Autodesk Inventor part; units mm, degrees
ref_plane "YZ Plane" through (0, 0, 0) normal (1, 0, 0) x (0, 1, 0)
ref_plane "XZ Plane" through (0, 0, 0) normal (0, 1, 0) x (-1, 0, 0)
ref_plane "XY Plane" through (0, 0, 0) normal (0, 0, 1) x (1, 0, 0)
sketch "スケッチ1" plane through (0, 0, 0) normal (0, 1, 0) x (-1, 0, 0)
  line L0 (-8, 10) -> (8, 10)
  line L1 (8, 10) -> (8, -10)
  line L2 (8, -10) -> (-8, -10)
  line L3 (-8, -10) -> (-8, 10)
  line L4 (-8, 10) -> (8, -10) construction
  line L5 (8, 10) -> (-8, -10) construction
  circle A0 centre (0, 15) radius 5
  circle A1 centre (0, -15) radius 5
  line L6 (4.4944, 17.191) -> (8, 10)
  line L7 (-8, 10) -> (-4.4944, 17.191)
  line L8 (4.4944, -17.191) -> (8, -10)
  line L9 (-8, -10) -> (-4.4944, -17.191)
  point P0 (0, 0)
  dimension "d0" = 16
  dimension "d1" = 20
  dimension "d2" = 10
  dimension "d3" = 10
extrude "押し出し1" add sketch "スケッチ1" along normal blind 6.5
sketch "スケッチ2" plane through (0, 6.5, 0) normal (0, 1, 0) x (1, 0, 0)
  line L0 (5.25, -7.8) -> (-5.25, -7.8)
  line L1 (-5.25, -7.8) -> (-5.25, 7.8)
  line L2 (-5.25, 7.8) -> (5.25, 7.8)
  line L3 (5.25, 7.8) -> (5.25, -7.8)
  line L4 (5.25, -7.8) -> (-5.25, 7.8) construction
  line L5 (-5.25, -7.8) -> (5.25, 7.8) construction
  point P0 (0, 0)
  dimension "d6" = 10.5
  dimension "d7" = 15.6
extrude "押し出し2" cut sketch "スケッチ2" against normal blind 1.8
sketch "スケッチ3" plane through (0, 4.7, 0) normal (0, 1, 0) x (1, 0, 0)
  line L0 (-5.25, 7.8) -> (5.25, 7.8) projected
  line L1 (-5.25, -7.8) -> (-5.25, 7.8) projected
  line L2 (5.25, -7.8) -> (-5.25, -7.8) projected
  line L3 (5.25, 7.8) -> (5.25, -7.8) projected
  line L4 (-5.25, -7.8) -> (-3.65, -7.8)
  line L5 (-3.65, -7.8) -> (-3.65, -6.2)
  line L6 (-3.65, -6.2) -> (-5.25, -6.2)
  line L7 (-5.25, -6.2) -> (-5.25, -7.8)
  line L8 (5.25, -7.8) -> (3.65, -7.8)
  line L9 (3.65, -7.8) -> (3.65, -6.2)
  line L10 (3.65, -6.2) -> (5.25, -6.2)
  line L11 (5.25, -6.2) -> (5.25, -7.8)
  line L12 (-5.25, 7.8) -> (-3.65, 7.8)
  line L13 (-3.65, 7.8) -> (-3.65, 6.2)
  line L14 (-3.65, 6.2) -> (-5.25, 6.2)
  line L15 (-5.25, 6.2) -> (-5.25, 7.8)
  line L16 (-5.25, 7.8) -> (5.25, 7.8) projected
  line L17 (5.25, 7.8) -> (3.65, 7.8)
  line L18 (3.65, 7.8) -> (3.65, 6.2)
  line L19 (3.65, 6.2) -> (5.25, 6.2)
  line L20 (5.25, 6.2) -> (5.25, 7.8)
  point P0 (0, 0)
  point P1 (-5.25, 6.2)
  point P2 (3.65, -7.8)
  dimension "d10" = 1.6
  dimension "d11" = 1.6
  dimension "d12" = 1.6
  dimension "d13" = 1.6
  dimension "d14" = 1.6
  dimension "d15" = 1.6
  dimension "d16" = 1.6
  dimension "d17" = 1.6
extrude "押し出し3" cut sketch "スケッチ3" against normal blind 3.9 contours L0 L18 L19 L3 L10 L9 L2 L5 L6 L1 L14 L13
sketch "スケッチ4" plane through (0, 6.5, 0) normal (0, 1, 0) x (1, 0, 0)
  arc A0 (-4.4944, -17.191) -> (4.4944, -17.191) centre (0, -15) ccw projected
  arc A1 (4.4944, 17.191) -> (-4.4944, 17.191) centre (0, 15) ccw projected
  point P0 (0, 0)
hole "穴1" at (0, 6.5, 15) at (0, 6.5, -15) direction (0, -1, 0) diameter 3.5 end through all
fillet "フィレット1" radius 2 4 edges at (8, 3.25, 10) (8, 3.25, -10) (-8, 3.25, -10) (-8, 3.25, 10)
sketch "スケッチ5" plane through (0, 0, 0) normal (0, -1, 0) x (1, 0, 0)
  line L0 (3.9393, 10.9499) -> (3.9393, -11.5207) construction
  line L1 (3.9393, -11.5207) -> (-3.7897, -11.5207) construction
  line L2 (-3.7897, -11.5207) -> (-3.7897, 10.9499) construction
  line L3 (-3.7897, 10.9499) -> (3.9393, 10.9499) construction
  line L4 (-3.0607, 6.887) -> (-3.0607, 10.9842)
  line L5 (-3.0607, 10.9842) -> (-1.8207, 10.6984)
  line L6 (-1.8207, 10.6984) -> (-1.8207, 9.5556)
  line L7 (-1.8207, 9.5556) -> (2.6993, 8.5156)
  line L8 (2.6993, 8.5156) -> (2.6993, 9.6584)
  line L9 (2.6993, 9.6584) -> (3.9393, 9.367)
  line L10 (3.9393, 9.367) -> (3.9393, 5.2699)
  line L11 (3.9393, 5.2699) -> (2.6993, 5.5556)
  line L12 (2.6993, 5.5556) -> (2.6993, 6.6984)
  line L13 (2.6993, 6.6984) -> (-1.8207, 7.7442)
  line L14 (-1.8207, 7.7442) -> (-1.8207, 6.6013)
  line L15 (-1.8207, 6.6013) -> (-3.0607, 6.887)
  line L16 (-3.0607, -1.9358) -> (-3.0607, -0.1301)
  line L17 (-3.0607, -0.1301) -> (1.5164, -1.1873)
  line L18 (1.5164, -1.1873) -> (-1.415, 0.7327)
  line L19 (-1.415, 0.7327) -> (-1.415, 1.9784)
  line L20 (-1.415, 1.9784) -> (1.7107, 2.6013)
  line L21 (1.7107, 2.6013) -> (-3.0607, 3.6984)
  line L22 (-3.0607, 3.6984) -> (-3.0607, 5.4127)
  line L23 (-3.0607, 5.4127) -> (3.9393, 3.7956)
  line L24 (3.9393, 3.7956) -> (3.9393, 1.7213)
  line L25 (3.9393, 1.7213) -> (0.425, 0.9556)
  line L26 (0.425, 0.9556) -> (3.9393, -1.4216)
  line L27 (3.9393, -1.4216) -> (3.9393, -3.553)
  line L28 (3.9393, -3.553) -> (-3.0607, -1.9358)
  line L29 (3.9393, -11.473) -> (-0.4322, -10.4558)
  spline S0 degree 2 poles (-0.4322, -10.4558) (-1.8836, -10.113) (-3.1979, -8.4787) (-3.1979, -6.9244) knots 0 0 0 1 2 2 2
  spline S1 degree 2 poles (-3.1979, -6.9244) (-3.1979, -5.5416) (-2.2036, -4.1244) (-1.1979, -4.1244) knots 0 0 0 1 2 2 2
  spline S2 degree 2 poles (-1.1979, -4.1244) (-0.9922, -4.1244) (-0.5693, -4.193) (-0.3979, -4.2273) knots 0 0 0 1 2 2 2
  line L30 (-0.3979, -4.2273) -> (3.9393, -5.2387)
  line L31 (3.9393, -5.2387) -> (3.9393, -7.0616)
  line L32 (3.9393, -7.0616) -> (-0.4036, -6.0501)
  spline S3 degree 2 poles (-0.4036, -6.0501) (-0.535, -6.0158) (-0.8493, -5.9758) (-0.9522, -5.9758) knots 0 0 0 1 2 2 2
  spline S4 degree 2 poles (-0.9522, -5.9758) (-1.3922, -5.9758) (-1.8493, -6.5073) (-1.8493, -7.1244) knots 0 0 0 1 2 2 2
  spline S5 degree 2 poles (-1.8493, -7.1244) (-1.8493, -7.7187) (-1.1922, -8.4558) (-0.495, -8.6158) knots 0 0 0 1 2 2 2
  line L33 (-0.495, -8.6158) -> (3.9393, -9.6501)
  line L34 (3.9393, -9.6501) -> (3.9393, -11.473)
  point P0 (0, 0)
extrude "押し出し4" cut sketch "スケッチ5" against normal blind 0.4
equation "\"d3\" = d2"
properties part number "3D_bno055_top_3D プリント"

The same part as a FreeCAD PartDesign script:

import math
import FreeCAD as App
import Part
import Sketcher

V = App.Vector


def edges_at(feature, points):
    """Names of the edges that pass closest to the given points."""
    edges = feature.Shape.Edges
    near = lambda p: min(range(len(edges)), key=lambda i: edges[i].distToShape(Part.Vertex(*p))[0])
    return sorted({f"Edge{near(p) + 1}" for p in points})


def add_polygon(sketch, points):
    """Adds a closed chain of lines whose ends are joined by coincident constraints."""
    first, n = sketch.GeometryCount, len(points)
    for a, b in zip(points, points[1:] + points[:1]):
        sketch.addGeometry(Part.LineSegment(App.Vector(*a, 0), App.Vector(*b, 0)), False)
    for i in range(n):
        sketch.addConstraint(Sketcher.Constraint("Coincident", first + i, 2, first + (i + 1) % n, 1))

doc = App.newDocument("Part")
body = doc.addObject("PartDesign::Body", "Body")

sketch1 = body.newObject("Sketcher::SketchObject", "Sketch")
sketch1.AttachmentSupport = (doc.getObject("XZ_Plane"), [""])
sketch1.MapMode = "FlatFace"
sketch1.addGeometry(Part.LineSegment(V(4, 17, 0), V(8, 10, 0)), False)
sketch1.addGeometry(Part.LineSegment(V(8, 10, 0), V(8, -10, 0)), False)
sketch1.addGeometry(Part.LineSegment(V(8, -10, 0), V(4, -17, 0)), False)
sketch1.addGeometry(Part.ArcOfCircle(Part.Circle(V(0, -15, 0), V(0, 0, 1), 5), math.radians(-154), math.radians(-26)), False)
sketch1.addGeometry(Part.LineSegment(V(-4, -17, 0), V(-8, -10, 0)), False)
sketch1.addGeometry(Part.LineSegment(V(-8, -10, 0), V(-8, 10, 0)), False)
sketch1.addGeometry(Part.LineSegment(V(-8, 10, 0), V(-4, 17, 0)), False)
sketch1.addGeometry(Part.ArcOfCircle(Part.Circle(V(0, 15, 0), V(0, 0, 1), 5), math.radians(26), math.radians(154)), False)
sketch1.addConstraint(Sketcher.Constraint("Coincident", 0, 2, 1, 1))
sketch1.addConstraint(Sketcher.Constraint("Coincident", 1, 2, 2, 1))
sketch1.addConstraint(Sketcher.Constraint("Tangent", 2, 2, 3, 2))
sketch1.addConstraint(Sketcher.Constraint("Tangent", 3, 1, 4, 1))
sketch1.addConstraint(Sketcher.Constraint("Coincident", 4, 2, 5, 1))
sketch1.addConstraint(Sketcher.Constraint("Coincident", 5, 2, 6, 1))
sketch1.addConstraint(Sketcher.Constraint("Tangent", 6, 2, 7, 2))
sketch1.addConstraint(Sketcher.Constraint("Tangent", 7, 1, 0, 1))
sketch1.addConstraint(Sketcher.Constraint("Vertical", 1))
sketch1.addConstraint(Sketcher.Constraint("Vertical", 5))
sketch1.addConstraint(Sketcher.Constraint("Equal", 3, 7))
sketch1.addConstraint(Sketcher.Constraint("Symmetric", 3, 3, 7, 3, -1, 1))
sketch1.addConstraint(Sketcher.Constraint("Symmetric", 0, 2, 4, 2, -1, 1))
sketch1.addConstraint(Sketcher.Constraint("Symmetric", 2, 2, 3, 1, -2))
sketch1.addConstraint(Sketcher.Constraint("Parallel", 2, 6))
sketch1.addConstraint(Sketcher.Constraint("Radius", 3, 5.0))
sketch1.addConstraint(Sketcher.Constraint("DistanceY", 1, 2, 1, 1, 20.0))
sketch1.addConstraint(Sketcher.Constraint("DistanceX", 4, 2, 1, 2, 16.0))
sketch1.addConstraint(Sketcher.Constraint("Distance", 0, 8.0))
pad1 = body.newObject("PartDesign::Pad", "Pad")
pad1.Profile = sketch1
pad1.Length = 6.5
pad1.Reversed = True

sketch2 = body.newObject("Sketcher::SketchObject", "Sketch001")
sketch2.AttachmentSupport = (doc.getObject("XZ_Plane"), [""])
sketch2.MapMode = "FlatFace"
sketch2.AttachmentOffset = App.Placement(V(0, 0, -6.5), App.Rotation())
add_polygon(sketch2, [(-5, 8), (5, 8), (5, -8), (-5, -8)])
sketch2.addConstraint(Sketcher.Constraint("Horizontal", 0))
sketch2.addConstraint(Sketcher.Constraint("Vertical", 1))
sketch2.addConstraint(Sketcher.Constraint("Horizontal", 2))
sketch2.addConstraint(Sketcher.Constraint("Vertical", 3))
sketch2.addConstraint(Sketcher.Constraint("Symmetric", 0, 2, 2, 2, -1, 1))
sketch2.addConstraint(Sketcher.Constraint("DistanceX", 0, 1, 0, 2, 10.5))
sketch2.addConstraint(Sketcher.Constraint("DistanceY", 1, 2, 1, 1, 15.6))
pocket1 = body.newObject("PartDesign::Pocket", "Pocket")
pocket1.Profile = sketch2
pocket1.Length = 1.8
pocket1.Reversed = True

sketch3 = body.newObject("Sketcher::SketchObject", "Sketch002")
sketch3.AttachmentSupport = (doc.getObject("XZ_Plane"), [""])
sketch3.MapMode = "FlatFace"
sketch3.AttachmentOffset = App.Placement(V(0, 0, -4.7), App.Rotation())
add_polygon(sketch3, [(3.6, -7.8), (-3.6, -7.8), (-3.6, -6.2), (-5.2, -6.2), (-5.2, 6.2), (-3.6, 6.2), (-3.6, 7.8), (3.6, 7.8), (3.6, 6.2), (5.2, 6.2), (5.2, -6.2), (3.6, -6.2)])
sketch3.addConstraint(Sketcher.Constraint("Horizontal", 0))
sketch3.addConstraint(Sketcher.Constraint("Vertical", 1))
sketch3.addConstraint(Sketcher.Constraint("Horizontal", 2))
sketch3.addConstraint(Sketcher.Constraint("Vertical", 3))
sketch3.addConstraint(Sketcher.Constraint("Horizontal", 4))
sketch3.addConstraint(Sketcher.Constraint("Vertical", 5))
sketch3.addConstraint(Sketcher.Constraint("Horizontal", 6))
sketch3.addConstraint(Sketcher.Constraint("Vertical", 7))
sketch3.addConstraint(Sketcher.Constraint("Horizontal", 8))
sketch3.addConstraint(Sketcher.Constraint("Vertical", 9))
sketch3.addConstraint(Sketcher.Constraint("Horizontal", 10))
sketch3.addConstraint(Sketcher.Constraint("Vertical", 11))
sketch3.addConstraint(Sketcher.Constraint("Symmetric", 0, 2, 6, 2, -1, 1))
sketch3.addConstraint(Sketcher.Constraint("Symmetric", 2, 2, 8, 2, -1, 1))
sketch3.addConstraint(Sketcher.Constraint("Symmetric", 4, 2, 10, 2, -1, 1))
sketch3.addConstraint(Sketcher.Constraint("Symmetric", 4, 2, 7, 2, -2))
sketch3.addConstraint(Sketcher.Constraint("Equal", 10, 1))
sketch3.addConstraint(Sketcher.Constraint("DistanceX", 2, 2, 2, 1, 1.6))
sketch3.addConstraint(Sketcher.Constraint("DistanceX", 0, 2, 0, 1, 7.3))
sketch3.addConstraint(Sketcher.Constraint("DistanceY", 3, 1, 3, 2, 12.4))
pocket2 = body.newObject("PartDesign::Pocket", "Pocket001")
pocket2.Profile = sketch3
pocket2.Length = 3.9
pocket2.Reversed = True

sketch4 = body.newObject("Sketcher::SketchObject", "Sketch003")
sketch4.AttachmentSupport = (doc.getObject("XZ_Plane"), [""])
sketch4.MapMode = "FlatFace"
sketch4.AttachmentOffset = App.Placement(V(0, 0, -6.5), App.Rotation())
sketch4.addGeometry(Part.Circle(V(0, 15, 0), V(0, 0, 1), 1.8), False)
sketch4.addGeometry(Part.Circle(V(0, -15, 0), V(0, 0, 1), 1.8), False)
sketch4.addConstraint(Sketcher.Constraint("Equal", 0, 1))
sketch4.addConstraint(Sketcher.Constraint("Symmetric", 0, 3, 1, 3, -1, 1))
sketch4.addConstraint(Sketcher.Constraint("PointOnObject", 0, 3, -2))
sketch4.addConstraint(Sketcher.Constraint("Diameter", 0, 3.5))
sketch4.addConstraint(Sketcher.Constraint("DistanceY", -1, 1, 0, 3, 15.0))
doc.recompute()
hole = body.newObject("PartDesign::Hole", "Hole")
hole.Profile = sketch4
hole.ThreadType = "None"
hole.Diameter = 3.5
hole.DepthType = "ThroughAll"
hole.Reversed = True
doc.recompute()

fillet = body.newObject("PartDesign::Fillet", "Fillet")
fillet.Base = (hole, edges_at(hole, [
    (8, 3.25, 10),
    (8, 3.25, -10),
    (-8, 3.25, -10),
    (-8, 3.25, 10),
]))
fillet.Radius = 2

sketch5 = body.newObject("Sketcher::SketchObject", "Sketch004")
sketch5.AttachmentSupport = (doc.getObject("XZ_Plane"), [""])
sketch5.MapMode = "FlatFace"
add_polygon(sketch5, [(-3.0607, 10.9842), (-3.0607, 6.887), (-1.8207, 6.6013), (-1.8207, 7.7442), (2.6993, 6.6984), (2.6993, 5.5556), (3.9393, 5.2699), (3.9393, 9.367), (2.6993, 9.6584), (2.6993, 8.5156), (-1.8207, 9.5556), (-1.8207, 10.6984)])
add_polygon(sketch5, [(-3.0607, -0.1301), (-3.0607, -1.9358), (3.9393, -3.553), (3.9393, -1.4216), (0.425, 0.9556), (3.9393, 1.7213), (3.9393, 3.7956), (-3.0607, 5.4127), (-3.0607, 3.6984), (1.7107, 2.6013), (-1.415, 1.9784), (-1.415, 0.7327), (1.5164, -1.1873)])
sketch5.addGeometry(Part.LineSegment(V(-0.4322, -10.4558, 0), V(3.9393, -11.473, 0)), False)
sketch5.addGeometry(Part.LineSegment(V(3.9393, -11.473, 0), V(3.9393, -9.6501, 0)), False)
sketch5.addGeometry(Part.LineSegment(V(3.9393, -9.6501, 0), V(-0.495, -8.6158, 0)), False)
sketch5.addGeometry(Part.BSplineCurve([V(-1.8493, -7.1244, 0), V(-1.8493, -7.7187, 0), V(-1.1922, -8.4558, 0), V(-0.495, -8.6158, 0)], [3, 1, 3], [0, 1, 2], False, 2, [1, 1, 1, 1], False), False)
sketch5.addGeometry(Part.BSplineCurve([V(-0.9522, -5.9758, 0), V(-1.3922, -5.9758, 0), V(-1.8493, -6.5073, 0), V(-1.8493, -7.1244, 0)], [3, 1, 3], [0, 1, 2], False, 2, [1, 1, 1, 1], False), False)
sketch5.addGeometry(Part.BSplineCurve([V(-0.4036, -6.0501, 0), V(-0.535, -6.0158, 0), V(-0.8493, -5.9758, 0), V(-0.9522, -5.9758, 0)], [3, 1, 3], [0, 1, 2], False, 2, [1, 1, 1, 1], False), False)
sketch5.addGeometry(Part.LineSegment(V(-0.4036, -6.0501, 0), V(3.9393, -7.0616, 0)), False)
sketch5.addGeometry(Part.LineSegment(V(3.9393, -7.0616, 0), V(3.9393, -5.2387, 0)), False)
sketch5.addGeometry(Part.LineSegment(V(3.9393, -5.2387, 0), V(-0.3979, -4.2273, 0)), False)
sketch5.addGeometry(Part.BSplineCurve([V(-1.1979, -4.1244, 0), V(-0.9922, -4.1244, 0), V(-0.5693, -4.193, 0), V(-0.3979, -4.2273, 0)], [3, 1, 3], [0, 1, 2], False, 2, [1, 1, 1, 1], False), False)
sketch5.addGeometry(Part.BSplineCurve([V(-3.1979, -6.9244, 0), V(-3.1979, -5.5416, 0), V(-2.2036, -4.1244, 0), V(-1.1979, -4.1244, 0)], [3, 1, 3], [0, 1, 2], False, 2, [1, 1, 1, 1], False), False)
sketch5.addGeometry(Part.BSplineCurve([V(-0.4322, -10.4558, 0), V(-1.8836, -10.113, 0), V(-3.1979, -8.4787, 0), V(-3.1979, -6.9244, 0)], [3, 1, 3], [0, 1, 2], False, 2, [1, 1, 1, 1], False), False)
sketch5.addConstraint(Sketcher.Constraint("Block", 28))
sketch5.addConstraint(Sketcher.Constraint("Block", 29))
sketch5.addConstraint(Sketcher.Constraint("Block", 30))
sketch5.addConstraint(Sketcher.Constraint("Block", 34))
sketch5.addConstraint(Sketcher.Constraint("Block", 35))
sketch5.addConstraint(Sketcher.Constraint("Block", 36))
sketch5.addConstraint(Sketcher.Constraint("Coincident", 25, 2, 26, 1))
sketch5.addConstraint(Sketcher.Constraint("Coincident", 26, 2, 27, 1))
sketch5.addConstraint(Sketcher.Constraint("Coincident", 27, 2, 28, 2))
sketch5.addConstraint(Sketcher.Constraint("Coincident", 30, 1, 31, 1))
sketch5.addConstraint(Sketcher.Constraint("Coincident", 31, 2, 32, 1))
sketch5.addConstraint(Sketcher.Constraint("Coincident", 32, 2, 33, 1))
sketch5.addConstraint(Sketcher.Constraint("Coincident", 33, 2, 34, 2))
sketch5.addConstraint(Sketcher.Constraint("Coincident", 36, 1, 25, 1))
sketch5.addConstraint(Sketcher.Constraint("Vertical", 0))
sketch5.addConstraint(Sketcher.Constraint("Vertical", 2))
sketch5.addConstraint(Sketcher.Constraint("Vertical", 4))
sketch5.addConstraint(Sketcher.Constraint("Vertical", 6))
sketch5.addConstraint(Sketcher.Constraint("Vertical", 8))
sketch5.addConstraint(Sketcher.Constraint("Vertical", 10))
sketch5.addConstraint(Sketcher.Constraint("Vertical", 12))
sketch5.addConstraint(Sketcher.Constraint("Vertical", 14))
sketch5.addConstraint(Sketcher.Constraint("Vertical", 17))
sketch5.addConstraint(Sketcher.Constraint("Vertical", 19))
sketch5.addConstraint(Sketcher.Constraint("Vertical", 22))
sketch5.addConstraint(Sketcher.Constraint("Vertical", 26))
sketch5.addConstraint(Sketcher.Constraint("Vertical", 32))
sketch5.addConstraint(Sketcher.Constraint("DistanceX", 0, 2, 5, 2, 7.0))
sketch5.addConstraint(Sketcher.Constraint("DistanceX", 12, 2, 5, 2, 7.0))
sketch5.addConstraint(Sketcher.Constraint("DistanceX", 12, 2, 13, 2, 7.0))
sketch5.addConstraint(Sketcher.Constraint("DistanceX", 12, 2, 25, 2, 7.0))
sketch5.addConstraint(Sketcher.Constraint("DistanceY", 15, 2, 4, 2, 4.6))
sketch5.addConstraint(Sketcher.Constraint("DistanceY", 2, 1, 2, 2, 1.143))
sketch5.addConstraint(Sketcher.Constraint("DistanceY", 6, 1, 6, 2, 4.097))
sketch5.addConstraint(Sketcher.Constraint("DistanceY", 26, 1, 26, 2, 1.823))
sketch5.addConstraint(Sketcher.Constraint("DistanceY", 32, 1, 32, 2, 1.823))
sketch5.addConstraint(Sketcher.Constraint("DistanceY", -1, 1, 5, 2, 5.27))
sketch5.addConstraint(Sketcher.Constraint("DistanceY", 24, 2, -1, 1, 0.13))
sketch5.addConstraint(Sketcher.Constraint("DistanceY", 26, 2, -1, 1, 9.65))
sketch5.addConstraint(Sketcher.Constraint("DistanceX", 0, 2, 1, 2, 1.24))
sketch5.addConstraint(Sketcher.Constraint("DistanceX", 1, 2, 3, 2, 4.52))
sketch5.addConstraint(Sketcher.Constraint("DistanceX", 7, 2, 6, 2, 1.24))
sketch5.addConstraint(Sketcher.Constraint("DistanceY", 3, 2, 7, 2, 2.96))
sketch5.addConstraint(Sketcher.Constraint("DistanceY", 4, 2, 8, 2, 2.96))
sketch5.addConstraint(Sketcher.Constraint("DistanceX", 0, 2, 9, 2, 1.24))
sketch5.addConstraint(Sketcher.Constraint("DistanceY", 8, 2, 9, 2, 1.04))
sketch5.addConstraint(Sketcher.Constraint("DistanceY", 7, 2, 10, 2, 1.04))
sketch5.addConstraint(Sketcher.Constraint("DistanceY", 2, 2, 11, 2, 3.24))
sketch5.addConstraint(Sketcher.Constraint("DistanceY", 12, 2, 2, 2, 9.68))
sketch5.addConstraint(Sketcher.Constraint("DistanceY", 14, 2, 3, 2, 8.12))
sketch5.addConstraint(Sketcher.Constraint("DistanceX", 4, 2, 16, 2, 1.24))
sketch5.addConstraint(Sketcher.Constraint("DistanceY", 17, 2, 4, 2, 1.76))
sketch5.addConstraint(Sketcher.Constraint("DistanceX", 18, 2, 1, 2, 1.24))
sketch5.addConstraint(Sketcher.Constraint("DistanceY", 16, 2, 20, 2, 0.88))
sketch5.addConstraint(Sketcher.Constraint("DistanceX", 21, 2, 15, 2, 1.84))
sketch5.addConstraint(Sketcher.Constraint("DistanceY", 21, 2, 19, 2, 1.72))
sketch5.addConstraint(Sketcher.Constraint("DistanceY", 23, 2, 22, 2, 1.92))
sketch5.addConstraint(Sketcher.Constraint("DistanceY", 25, 2, 13, 2, 7.92))
sketch5.addConstraint(Sketcher.Constraint("DistanceY", 27, 2, 12, 2, 6.68))
sketch5.addConstraint(Sketcher.Constraint("DistanceY", 31, 2, 14, 2, 5.64))
sketch5.addConstraint(Sketcher.Constraint("DistanceY", 33, 2, 23, 2, 3.04))
sketch5.addConstraint(Sketcher.Constraint("Distance", 20, 4.896))
sketch5.addConstraint(Sketcher.Constraint("DistanceY", 0, 2, 0, 1, 4.0972))
sketch5.addConstraint(Sketcher.Constraint("DistanceY", 4, 2, 4, 1, 1.1428))
sketch5.addConstraint(Sketcher.Constraint("DistanceY", 14, 1, 14, 2, 2.1314))
sketch5.addConstraint(Sketcher.Constraint("DistanceY", 17, 1, 17, 2, 2.0743))
sketch5.addConstraint(Sketcher.Constraint("DistanceY", 19, 2, 19, 1, 1.7143))
sketch5.addConstraint(Sketcher.Constraint("DistanceY", 22, 2, 22, 1, 1.2457))
sketch5.addConstraint(Sketcher.Constraint("DistanceX", -1, 1, 15, 2, 0.425))
sketch5.addConstraint(Sketcher.Constraint("DistanceX", 23, 2, 14, 2, 2.423))
sketch5.addConstraint(Sketcher.Constraint("DistanceX", 23, 2, 32, 2, 2.423))
sketch5.addConstraint(Sketcher.Constraint("Distance", 15, 4.2428))
pocket3 = body.newObject("PartDesign::Pocket", "Pocket002")
pocket3.Profile = sketch5
pocket3.Length = 0.4

doc.recompute()
